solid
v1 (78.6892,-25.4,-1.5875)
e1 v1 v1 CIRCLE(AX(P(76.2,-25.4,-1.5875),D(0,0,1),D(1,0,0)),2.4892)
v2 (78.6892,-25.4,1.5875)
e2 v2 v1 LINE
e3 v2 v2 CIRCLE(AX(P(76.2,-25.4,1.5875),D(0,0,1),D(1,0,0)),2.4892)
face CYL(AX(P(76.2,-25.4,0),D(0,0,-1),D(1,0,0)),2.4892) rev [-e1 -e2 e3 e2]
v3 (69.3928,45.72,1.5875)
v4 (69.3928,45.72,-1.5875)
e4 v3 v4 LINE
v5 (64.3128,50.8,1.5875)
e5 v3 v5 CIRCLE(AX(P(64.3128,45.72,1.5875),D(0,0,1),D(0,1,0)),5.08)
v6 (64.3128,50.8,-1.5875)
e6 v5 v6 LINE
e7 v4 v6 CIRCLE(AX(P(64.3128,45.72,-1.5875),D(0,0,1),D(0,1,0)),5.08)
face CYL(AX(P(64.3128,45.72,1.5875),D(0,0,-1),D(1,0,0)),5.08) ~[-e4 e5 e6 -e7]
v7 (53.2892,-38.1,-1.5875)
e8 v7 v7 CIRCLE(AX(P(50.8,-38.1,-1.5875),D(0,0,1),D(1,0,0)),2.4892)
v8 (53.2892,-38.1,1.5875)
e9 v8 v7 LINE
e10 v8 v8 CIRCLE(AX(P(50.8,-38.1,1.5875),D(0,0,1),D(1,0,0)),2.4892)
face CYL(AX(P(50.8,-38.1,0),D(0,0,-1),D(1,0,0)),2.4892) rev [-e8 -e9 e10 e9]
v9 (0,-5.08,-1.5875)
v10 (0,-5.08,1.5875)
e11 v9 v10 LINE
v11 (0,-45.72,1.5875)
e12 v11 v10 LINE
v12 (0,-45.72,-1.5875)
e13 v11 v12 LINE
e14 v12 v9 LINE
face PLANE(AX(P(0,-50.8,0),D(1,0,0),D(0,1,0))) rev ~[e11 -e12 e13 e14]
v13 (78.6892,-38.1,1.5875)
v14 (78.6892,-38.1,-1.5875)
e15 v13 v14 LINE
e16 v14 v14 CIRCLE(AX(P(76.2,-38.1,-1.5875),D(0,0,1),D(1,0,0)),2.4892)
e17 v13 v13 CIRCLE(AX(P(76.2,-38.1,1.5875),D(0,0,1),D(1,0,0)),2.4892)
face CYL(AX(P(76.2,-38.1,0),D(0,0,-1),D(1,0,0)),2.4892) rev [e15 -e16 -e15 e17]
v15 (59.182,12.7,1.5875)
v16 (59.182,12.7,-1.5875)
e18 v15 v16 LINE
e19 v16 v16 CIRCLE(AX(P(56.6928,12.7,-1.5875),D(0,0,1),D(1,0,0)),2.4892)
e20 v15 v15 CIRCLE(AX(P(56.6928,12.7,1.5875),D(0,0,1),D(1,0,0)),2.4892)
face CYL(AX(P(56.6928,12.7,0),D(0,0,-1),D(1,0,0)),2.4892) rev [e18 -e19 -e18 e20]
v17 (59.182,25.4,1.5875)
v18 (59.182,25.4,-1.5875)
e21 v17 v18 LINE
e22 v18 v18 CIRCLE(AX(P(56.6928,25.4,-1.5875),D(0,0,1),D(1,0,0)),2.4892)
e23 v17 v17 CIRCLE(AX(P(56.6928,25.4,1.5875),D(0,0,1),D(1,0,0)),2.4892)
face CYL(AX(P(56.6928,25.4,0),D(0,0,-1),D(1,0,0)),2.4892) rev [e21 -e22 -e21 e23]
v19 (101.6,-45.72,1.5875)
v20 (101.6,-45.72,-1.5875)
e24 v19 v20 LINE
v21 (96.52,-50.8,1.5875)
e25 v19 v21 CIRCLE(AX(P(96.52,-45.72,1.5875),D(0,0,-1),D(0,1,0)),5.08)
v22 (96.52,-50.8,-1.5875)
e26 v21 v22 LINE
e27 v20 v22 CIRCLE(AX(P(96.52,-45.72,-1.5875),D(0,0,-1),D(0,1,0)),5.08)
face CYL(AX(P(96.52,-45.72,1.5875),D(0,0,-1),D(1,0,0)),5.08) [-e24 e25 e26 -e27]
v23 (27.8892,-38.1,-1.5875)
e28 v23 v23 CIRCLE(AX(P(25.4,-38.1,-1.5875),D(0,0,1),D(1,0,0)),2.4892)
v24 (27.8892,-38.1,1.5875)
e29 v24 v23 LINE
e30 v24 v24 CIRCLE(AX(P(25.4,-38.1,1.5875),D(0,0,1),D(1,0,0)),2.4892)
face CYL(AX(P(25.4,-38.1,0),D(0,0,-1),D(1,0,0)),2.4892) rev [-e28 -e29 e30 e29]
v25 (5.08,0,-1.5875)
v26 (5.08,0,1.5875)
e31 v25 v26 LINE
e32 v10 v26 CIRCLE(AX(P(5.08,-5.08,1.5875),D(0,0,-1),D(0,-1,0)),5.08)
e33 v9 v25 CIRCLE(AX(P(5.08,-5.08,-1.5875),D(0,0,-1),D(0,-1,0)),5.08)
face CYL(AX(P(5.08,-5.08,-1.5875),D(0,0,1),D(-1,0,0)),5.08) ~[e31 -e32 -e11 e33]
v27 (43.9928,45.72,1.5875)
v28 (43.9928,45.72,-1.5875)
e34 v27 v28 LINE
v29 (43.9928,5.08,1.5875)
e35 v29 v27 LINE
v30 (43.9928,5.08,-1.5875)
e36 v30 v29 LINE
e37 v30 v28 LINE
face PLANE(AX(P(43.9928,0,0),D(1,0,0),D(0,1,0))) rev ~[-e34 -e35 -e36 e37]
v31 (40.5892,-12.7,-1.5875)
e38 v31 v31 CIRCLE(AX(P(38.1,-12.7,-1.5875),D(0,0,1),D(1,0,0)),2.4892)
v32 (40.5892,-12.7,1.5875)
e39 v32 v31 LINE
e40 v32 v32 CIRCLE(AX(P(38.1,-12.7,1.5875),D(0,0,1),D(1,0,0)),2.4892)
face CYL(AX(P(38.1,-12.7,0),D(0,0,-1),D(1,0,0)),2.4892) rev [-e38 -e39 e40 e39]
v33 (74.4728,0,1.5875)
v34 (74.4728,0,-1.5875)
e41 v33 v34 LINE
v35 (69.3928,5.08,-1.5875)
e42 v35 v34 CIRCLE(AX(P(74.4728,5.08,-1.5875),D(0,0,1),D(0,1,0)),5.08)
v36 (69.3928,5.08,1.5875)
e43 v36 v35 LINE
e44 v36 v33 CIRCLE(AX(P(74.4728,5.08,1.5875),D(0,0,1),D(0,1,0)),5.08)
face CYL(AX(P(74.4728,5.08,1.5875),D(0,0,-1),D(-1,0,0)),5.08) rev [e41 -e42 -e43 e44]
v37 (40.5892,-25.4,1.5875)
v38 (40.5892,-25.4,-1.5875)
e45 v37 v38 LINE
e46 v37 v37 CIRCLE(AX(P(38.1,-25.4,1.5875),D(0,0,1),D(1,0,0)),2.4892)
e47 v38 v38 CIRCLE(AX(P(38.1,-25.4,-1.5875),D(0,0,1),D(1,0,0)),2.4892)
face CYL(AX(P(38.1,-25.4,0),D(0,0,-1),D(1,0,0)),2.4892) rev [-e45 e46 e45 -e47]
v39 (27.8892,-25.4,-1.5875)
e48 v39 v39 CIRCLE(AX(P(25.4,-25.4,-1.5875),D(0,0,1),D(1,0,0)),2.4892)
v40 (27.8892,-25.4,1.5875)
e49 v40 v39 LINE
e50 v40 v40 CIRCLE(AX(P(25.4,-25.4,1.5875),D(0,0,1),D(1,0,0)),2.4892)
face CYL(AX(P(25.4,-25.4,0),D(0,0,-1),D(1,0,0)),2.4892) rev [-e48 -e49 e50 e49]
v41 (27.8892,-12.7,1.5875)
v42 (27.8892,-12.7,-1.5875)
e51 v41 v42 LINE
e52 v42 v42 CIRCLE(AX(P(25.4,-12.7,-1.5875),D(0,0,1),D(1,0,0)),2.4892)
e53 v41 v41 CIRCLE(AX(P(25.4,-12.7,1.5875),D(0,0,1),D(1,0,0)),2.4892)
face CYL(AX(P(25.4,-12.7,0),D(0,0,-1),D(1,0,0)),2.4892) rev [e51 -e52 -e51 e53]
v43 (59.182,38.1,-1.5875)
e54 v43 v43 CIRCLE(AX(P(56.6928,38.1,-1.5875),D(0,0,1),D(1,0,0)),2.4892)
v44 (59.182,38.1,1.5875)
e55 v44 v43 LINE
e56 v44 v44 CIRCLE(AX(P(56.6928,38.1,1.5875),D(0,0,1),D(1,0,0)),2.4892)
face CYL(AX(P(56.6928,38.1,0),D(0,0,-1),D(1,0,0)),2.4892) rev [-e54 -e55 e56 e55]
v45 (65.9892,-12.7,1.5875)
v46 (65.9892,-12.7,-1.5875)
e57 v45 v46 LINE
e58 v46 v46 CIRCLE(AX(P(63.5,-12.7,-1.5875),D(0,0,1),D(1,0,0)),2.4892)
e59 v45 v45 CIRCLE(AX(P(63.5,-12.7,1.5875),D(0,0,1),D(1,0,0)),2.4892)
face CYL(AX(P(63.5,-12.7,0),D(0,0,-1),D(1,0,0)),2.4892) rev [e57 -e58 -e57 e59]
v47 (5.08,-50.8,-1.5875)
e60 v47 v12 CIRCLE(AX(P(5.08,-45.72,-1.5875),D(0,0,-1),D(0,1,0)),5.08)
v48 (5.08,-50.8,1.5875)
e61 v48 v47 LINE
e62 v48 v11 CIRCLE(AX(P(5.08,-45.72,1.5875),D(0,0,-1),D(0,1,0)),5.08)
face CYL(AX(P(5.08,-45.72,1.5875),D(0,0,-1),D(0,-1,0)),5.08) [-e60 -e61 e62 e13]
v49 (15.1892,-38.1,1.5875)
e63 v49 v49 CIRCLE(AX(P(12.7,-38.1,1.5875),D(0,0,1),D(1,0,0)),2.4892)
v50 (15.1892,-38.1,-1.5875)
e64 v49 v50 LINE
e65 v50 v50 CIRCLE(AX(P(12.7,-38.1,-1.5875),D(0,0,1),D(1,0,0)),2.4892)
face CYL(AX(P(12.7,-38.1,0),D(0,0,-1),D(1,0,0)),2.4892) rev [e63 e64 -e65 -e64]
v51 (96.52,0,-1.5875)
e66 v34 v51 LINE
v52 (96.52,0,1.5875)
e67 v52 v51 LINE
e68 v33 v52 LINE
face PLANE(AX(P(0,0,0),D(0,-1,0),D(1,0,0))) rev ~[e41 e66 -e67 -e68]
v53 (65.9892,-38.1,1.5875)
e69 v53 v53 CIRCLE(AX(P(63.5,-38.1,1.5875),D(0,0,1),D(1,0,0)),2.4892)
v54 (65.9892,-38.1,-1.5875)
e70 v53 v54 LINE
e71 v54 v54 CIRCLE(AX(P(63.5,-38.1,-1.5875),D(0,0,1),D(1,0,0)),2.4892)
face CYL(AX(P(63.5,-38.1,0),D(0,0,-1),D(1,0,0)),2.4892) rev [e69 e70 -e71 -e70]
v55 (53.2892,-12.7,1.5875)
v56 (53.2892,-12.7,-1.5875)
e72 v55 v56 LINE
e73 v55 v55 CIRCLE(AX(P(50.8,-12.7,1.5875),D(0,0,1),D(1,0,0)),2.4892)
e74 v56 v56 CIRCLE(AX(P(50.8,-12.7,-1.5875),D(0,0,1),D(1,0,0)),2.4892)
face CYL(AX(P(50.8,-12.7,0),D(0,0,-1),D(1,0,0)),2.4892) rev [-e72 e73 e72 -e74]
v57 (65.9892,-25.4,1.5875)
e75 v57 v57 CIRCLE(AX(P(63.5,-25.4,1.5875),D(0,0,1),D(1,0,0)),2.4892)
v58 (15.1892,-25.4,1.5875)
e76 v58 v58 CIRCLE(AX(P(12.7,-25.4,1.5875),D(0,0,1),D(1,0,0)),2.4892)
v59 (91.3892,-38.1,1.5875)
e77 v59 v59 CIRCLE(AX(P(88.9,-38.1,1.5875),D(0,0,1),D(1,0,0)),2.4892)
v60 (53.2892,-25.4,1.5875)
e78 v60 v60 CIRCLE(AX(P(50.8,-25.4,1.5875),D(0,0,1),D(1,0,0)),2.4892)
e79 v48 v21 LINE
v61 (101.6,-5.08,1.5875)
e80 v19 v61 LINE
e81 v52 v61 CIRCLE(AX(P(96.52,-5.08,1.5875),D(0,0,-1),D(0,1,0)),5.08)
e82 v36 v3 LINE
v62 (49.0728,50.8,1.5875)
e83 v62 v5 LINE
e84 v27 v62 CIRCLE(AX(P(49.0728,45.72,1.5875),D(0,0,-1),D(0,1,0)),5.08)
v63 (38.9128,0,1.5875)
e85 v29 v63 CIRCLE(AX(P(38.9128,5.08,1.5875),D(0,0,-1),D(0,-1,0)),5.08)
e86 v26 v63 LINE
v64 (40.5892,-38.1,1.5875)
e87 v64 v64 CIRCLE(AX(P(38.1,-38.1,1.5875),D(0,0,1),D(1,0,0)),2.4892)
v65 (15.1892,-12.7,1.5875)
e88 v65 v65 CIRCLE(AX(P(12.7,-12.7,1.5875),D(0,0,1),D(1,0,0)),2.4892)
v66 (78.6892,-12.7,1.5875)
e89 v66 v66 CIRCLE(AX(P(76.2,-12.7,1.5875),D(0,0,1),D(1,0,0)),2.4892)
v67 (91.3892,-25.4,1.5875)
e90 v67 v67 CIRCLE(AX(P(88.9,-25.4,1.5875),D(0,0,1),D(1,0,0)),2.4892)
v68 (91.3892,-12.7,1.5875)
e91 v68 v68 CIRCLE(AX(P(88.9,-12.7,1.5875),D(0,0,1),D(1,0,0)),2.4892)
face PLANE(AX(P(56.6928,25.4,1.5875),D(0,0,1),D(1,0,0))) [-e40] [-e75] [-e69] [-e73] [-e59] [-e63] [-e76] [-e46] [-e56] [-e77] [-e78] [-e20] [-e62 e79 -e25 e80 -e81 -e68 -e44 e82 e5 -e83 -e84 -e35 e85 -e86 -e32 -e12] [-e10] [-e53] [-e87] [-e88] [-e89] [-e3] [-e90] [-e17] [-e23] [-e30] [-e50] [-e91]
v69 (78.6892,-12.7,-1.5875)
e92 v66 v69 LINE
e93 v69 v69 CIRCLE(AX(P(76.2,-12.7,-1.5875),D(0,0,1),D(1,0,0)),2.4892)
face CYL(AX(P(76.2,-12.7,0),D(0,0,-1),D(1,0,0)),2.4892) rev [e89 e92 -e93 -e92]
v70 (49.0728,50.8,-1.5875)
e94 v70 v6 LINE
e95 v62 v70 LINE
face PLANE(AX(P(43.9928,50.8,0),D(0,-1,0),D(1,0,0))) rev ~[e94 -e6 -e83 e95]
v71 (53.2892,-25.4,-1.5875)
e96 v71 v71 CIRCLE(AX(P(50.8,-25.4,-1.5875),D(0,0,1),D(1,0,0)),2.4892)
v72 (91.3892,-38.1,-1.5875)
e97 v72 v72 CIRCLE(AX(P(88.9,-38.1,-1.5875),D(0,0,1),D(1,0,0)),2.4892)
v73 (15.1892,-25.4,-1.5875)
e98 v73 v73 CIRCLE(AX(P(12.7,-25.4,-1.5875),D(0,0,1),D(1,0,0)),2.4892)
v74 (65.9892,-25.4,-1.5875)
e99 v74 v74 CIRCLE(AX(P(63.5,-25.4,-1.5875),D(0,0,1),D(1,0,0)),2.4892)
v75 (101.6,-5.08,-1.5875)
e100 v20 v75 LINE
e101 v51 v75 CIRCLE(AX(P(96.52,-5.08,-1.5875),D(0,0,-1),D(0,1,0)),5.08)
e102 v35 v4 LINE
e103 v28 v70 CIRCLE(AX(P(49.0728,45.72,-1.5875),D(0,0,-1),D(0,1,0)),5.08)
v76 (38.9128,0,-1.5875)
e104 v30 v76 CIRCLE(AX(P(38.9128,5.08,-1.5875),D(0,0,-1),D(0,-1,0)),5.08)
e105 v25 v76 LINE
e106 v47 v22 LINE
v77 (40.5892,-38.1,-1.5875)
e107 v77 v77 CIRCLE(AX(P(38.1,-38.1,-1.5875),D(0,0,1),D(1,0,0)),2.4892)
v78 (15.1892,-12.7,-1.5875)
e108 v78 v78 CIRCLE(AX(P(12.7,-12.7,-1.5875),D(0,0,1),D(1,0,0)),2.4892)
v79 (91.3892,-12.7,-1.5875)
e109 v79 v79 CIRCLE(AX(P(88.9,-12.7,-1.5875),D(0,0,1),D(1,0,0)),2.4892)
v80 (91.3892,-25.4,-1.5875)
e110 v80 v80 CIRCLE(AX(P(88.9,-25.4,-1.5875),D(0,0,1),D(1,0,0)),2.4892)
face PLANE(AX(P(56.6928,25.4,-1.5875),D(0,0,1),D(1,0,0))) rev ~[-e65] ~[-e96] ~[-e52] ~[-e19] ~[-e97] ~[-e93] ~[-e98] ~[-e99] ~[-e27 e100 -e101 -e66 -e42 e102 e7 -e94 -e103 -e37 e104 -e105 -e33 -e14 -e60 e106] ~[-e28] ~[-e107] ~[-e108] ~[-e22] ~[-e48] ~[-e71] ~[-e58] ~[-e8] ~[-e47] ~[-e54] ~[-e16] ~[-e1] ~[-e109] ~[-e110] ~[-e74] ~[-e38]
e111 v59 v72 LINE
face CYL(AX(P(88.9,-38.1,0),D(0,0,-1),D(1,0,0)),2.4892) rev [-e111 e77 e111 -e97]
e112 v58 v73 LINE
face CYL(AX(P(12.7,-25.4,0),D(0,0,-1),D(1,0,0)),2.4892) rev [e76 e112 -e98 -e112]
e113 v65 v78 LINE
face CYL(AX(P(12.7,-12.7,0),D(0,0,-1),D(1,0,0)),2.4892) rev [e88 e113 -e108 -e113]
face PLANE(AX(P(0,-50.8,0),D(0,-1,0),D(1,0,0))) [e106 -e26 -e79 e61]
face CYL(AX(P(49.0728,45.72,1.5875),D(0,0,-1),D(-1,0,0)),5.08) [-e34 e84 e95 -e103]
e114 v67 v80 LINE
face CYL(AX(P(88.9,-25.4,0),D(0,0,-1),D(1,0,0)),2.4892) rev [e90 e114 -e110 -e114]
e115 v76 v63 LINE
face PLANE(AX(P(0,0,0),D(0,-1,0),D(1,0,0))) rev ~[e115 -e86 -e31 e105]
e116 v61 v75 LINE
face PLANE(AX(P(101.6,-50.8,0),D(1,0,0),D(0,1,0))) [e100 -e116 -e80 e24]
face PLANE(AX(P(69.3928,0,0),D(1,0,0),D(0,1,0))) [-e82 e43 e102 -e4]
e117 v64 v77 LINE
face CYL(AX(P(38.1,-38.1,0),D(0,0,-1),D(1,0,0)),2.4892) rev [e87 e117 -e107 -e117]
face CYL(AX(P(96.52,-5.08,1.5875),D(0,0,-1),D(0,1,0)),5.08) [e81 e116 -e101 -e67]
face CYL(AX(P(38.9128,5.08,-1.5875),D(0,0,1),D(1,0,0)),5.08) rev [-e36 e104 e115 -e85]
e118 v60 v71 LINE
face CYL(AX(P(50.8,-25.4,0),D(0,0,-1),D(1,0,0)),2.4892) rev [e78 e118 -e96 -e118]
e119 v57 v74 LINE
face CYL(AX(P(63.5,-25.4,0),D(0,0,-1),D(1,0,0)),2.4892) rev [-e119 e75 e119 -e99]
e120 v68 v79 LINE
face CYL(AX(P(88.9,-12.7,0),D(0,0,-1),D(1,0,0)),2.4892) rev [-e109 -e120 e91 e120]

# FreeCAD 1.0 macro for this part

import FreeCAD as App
import Part
import Sketcher
Q = App.Units.Quantity


def edges_at(feature, points):
    """Names of the edges that pass closest to the given points."""
    edges = feature.Shape.Edges
    near = lambda p: min(range(len(edges)), key=lambda i: edges[i].distToShape(Part.Vertex(*p))[0])
    return sorted({f"Edge{near(p) + 1}" for p in points})


def add_polygon(sketch, points):
    """Adds a closed chain of lines whose ends are joined by coincident constraints."""
    first, n = sketch.GeometryCount, len(points)
    for a, b in zip(points, points[1:] + points[:1]):
        sketch.addGeometry(Part.LineSegment(App.Vector(*a, 0), App.Vector(*b, 0)), False)
    for i in range(n):
        sketch.addConstraint(Sketcher.Constraint("Coincident", first + i, 2, first + (i + 1) % n, 1))

doc = App.newDocument("Part")
params = doc.addObject("Spreadsheet::Sheet", "Params")
for row, (alias, value) in enumerate([
    ("sketch1_width", "4 in"),
    ("sketch1_width2", "1 in"),
    ("sketch1_height", "2 in"),
    ("sketch1_diameter", "0.196 in"),
    ("sketch1_width3", "1.268 in"),
    ("pad1_length", "0.125 in"),
    ("fillet_radius", "0.2 in"),
], start=1):
    params.set(f"A{row}", alias)
    params.set(f"B{row}", "=" + value)
    params.setAlias(f"B{row}", alias)

body = doc.addObject("PartDesign::Body", "Body")

# Sketch on XY plane
sketch1 = doc.addObject("Sketcher::SketchObject", "Sketch")
body.addObject(sketch1)
sketch1.AttachmentSupport = (doc.XY_Plane, [""])
sketch1.MapMode = "FlatFace"
add_polygon(sketch1, [(0, 0), (0, -50.8), (101.6, -50.8), (101.6, 0), (69.3928, 0), (69.3928, 50.8), (43.9928, 50.8), (43.9928, 0)])  # lines 0-7
sketch1.addGeometry(Part.Circle(App.Vector(12.7, -38.1, 0), App.Vector(0, 0, 1), 2.4892), False)  # 8
sketch1.addGeometry(Part.Circle(App.Vector(25.4, -38.1, 0), App.Vector(0, 0, 1), 2.4892), False)  # 9
sketch1.addGeometry(Part.Circle(App.Vector(38.1, -38.1, 0), App.Vector(0, 0, 1), 2.4892), False)  # 10
sketch1.addGeometry(Part.Circle(App.Vector(50.8, -38.1, 0), App.Vector(0, 0, 1), 2.4892), False)  # 11
sketch1.addGeometry(Part.Circle(App.Vector(63.5, -38.1, 0), App.Vector(0, 0, 1), 2.4892), False)  # 12
sketch1.addGeometry(Part.Circle(App.Vector(76.2, -38.1, 0), App.Vector(0, 0, 1), 2.4892), False)  # 13
sketch1.addGeometry(Part.Circle(App.Vector(88.9, -38.1, 0), App.Vector(0, 0, 1), 2.4892), False)  # 14
sketch1.addGeometry(Part.Circle(App.Vector(12.7, -25.4, 0), App.Vector(0, 0, 1), 2.4892), False)  # 15
sketch1.addGeometry(Part.Circle(App.Vector(25.4, -25.4, 0), App.Vector(0, 0, 1), 2.4892), False)  # 16
sketch1.addGeometry(Part.Circle(App.Vector(38.1, -25.4, 0), App.Vector(0, 0, 1), 2.4892), False)  # 17
sketch1.addGeometry(Part.Circle(App.Vector(50.8, -25.4, 0), App.Vector(0, 0, 1), 2.4892), False)  # 18
sketch1.addGeometry(Part.Circle(App.Vector(12.7, -12.7, 0), App.Vector(0, 0, 1), 2.4892), False)  # 19
sketch1.addGeometry(Part.Circle(App.Vector(25.4, -12.7, 0), App.Vector(0, 0, 1), 2.4892), False)  # 20
sketch1.addGeometry(Part.Circle(App.Vector(38.1, -12.7, 0), App.Vector(0, 0, 1), 2.4892), False)  # 21
sketch1.addGeometry(Part.Circle(App.Vector(50.8, -12.7, 0), App.Vector(0, 0, 1), 2.4892), False)  # 22
sketch1.addGeometry(Part.Circle(App.Vector(63.5, -25.4, 0), App.Vector(0, 0, 1), 2.4892), False)  # 23
sketch1.addGeometry(Part.Circle(App.Vector(76.2, -25.4, 0), App.Vector(0, 0, 1), 2.4892), False)  # 24
sketch1.addGeometry(Part.Circle(App.Vector(88.9, -25.4, 0), App.Vector(0, 0, 1), 2.4892), False)  # 25
sketch1.addGeometry(Part.Circle(App.Vector(63.5, -12.7, 0), App.Vector(0, 0, 1), 2.4892), False)  # 26
sketch1.addGeometry(Part.Circle(App.Vector(76.2, -12.7, 0), App.Vector(0, 0, 1), 2.4892), False)  # 27
sketch1.addGeometry(Part.Circle(App.Vector(88.9, -12.7, 0), App.Vector(0, 0, 1), 2.4892), False)  # 28
sketch1.addGeometry(Part.Circle(App.Vector(56.6928, 38.1, 0), App.Vector(0, 0, 1), 2.4892), False)  # 29
sketch1.addGeometry(Part.Circle(App.Vector(56.6928, 12.7, 0), App.Vector(0, 0, 1), 2.4892), False)  # 30
sketch1.addGeometry(Part.Circle(App.Vector(56.6928, 25.4, 0), App.Vector(0, 0, 1), 2.4892), False)  # 31
sketch1.addConstraint([
    Sketcher.Constraint("Vertical", 0),
    Sketcher.Constraint("Horizontal", 1),
    Sketcher.Constraint("Vertical", 2),
    Sketcher.Constraint("Horizontal", 3),
    Sketcher.Constraint("Vertical", 4),
    Sketcher.Constraint("Horizontal", 5),
    Sketcher.Constraint("Vertical", 6),
    Sketcher.Constraint("Horizontal", 7),
    Sketcher.Constraint("Coincident", 7, 2, -1, 1),
    Sketcher.Constraint("Equal", 8, 9),
    Sketcher.Constraint("Equal", 9, 10),
    Sketcher.Constraint("Equal", 10, 11),
    Sketcher.Constraint("Equal", 11, 12),
    Sketcher.Constraint("Equal", 12, 13),
    Sketcher.Constraint("Equal", 13, 14),
    Sketcher.Constraint("Equal", 14, 15),
    Sketcher.Constraint("Equal", 15, 16),
    Sketcher.Constraint("Equal", 16, 17),
    Sketcher.Constraint("Equal", 17, 18),
    Sketcher.Constraint("Equal", 18, 19),
    Sketcher.Constraint("Equal", 19, 20),
    Sketcher.Constraint("Equal", 20, 21),
    Sketcher.Constraint("Equal", 21, 22),
    Sketcher.Constraint("Equal", 22, 23),
    Sketcher.Constraint("Equal", 23, 24),
    Sketcher.Constraint("Equal", 24, 25),
    Sketcher.Constraint("Equal", 25, 26),
    Sketcher.Constraint("Equal", 26, 27),
    Sketcher.Constraint("Equal", 27, 28),
    Sketcher.Constraint("Equal", 28, 29),
    Sketcher.Constraint("Equal", 29, 30),
    Sketcher.Constraint("Equal", 30, 31),
    Sketcher.Constraint("PointOnObject", 2, 2, -1),
    Sketcher.Constraint("Horizontal", 8, 3, 9, 3),
    Sketcher.Constraint("Horizontal", 9, 3, 10, 3),
    Sketcher.Constraint("Horizontal", 10, 3, 11, 3),
    Sketcher.Constraint("Horizontal", 11, 3, 12, 3),
    Sketcher.Constraint("Horizontal", 12, 3, 13, 3),
    Sketcher.Constraint("Horizontal", 13, 3, 14, 3),
    Sketcher.Constraint("Horizontal", 15, 3, 16, 3),
    Sketcher.Constraint("Horizontal", 16, 3, 17, 3),
    Sketcher.Constraint("Horizontal", 17, 3, 18, 3),
    Sketcher.Constraint("Horizontal", 19, 3, 20, 3),
    Sketcher.Constraint("Horizontal", 20, 3, 21, 3),
    Sketcher.Constraint("Horizontal", 21, 3, 22, 3),
    Sketcher.Constraint("Horizontal", 18, 3, 23, 3),
    Sketcher.Constraint("Horizontal", 23, 3, 24, 3),
    Sketcher.Constraint("Horizontal", 24, 3, 25, 3),
    Sketcher.Constraint("Horizontal", 22, 3, 26, 3),
    Sketcher.Constraint("Horizontal", 26, 3, 27, 3),
    Sketcher.Constraint("Horizontal", 27, 3, 28, 3),
    Sketcher.Constraint("Vertical", 8, 3, 15, 3),
    Sketcher.Constraint("Vertical", 9, 3, 16, 3),
    Sketcher.Constraint("Vertical", 10, 3, 17, 3),
    Sketcher.Constraint("Vertical", 11, 3, 18, 3),
    Sketcher.Constraint("Vertical", 15, 3, 19, 3),
    Sketcher.Constraint("Vertical", 16, 3, 20, 3),
    Sketcher.Constraint("Vertical", 17, 3, 21, 3),
    Sketcher.Constraint("Vertical", 18, 3, 22, 3),
    Sketcher.Constraint("Vertical", 12, 3, 23, 3),
    Sketcher.Constraint("Vertical", 13, 3, 24, 3),
    Sketcher.Constraint("Vertical", 14, 3, 25, 3),
    Sketcher.Constraint("Vertical", 23, 3, 26, 3),
    Sketcher.Constraint("Vertical", 24, 3, 27, 3),
    Sketcher.Constraint("Vertical", 25, 3, 28, 3),
    Sketcher.Constraint("Vertical", 29, 3, 30, 3),
    Sketcher.Constraint("Vertical", 30, 3, 31, 3),
    Sketcher.Constraint("Equal", 2, 4),
    Sketcher.Constraint("DistanceX", 1, 1, 1, 2, Q("4 in")),
    Sketcher.Constraint("DistanceX", 5, 2, 5, 1, Q("1 in")),
    Sketcher.Constraint("DistanceY", 0, 2, 0, 1, Q("2 in")),
    Sketcher.Constraint("Diameter", 8, Q("0.196 in")),
    Sketcher.Constraint("DistanceX", -1, 1, 9, 3, Q("1 in")),
    Sketcher.Constraint("DistanceX", -1, 1, 11, 3, Q("2 in")),
    Sketcher.Constraint("DistanceX", -1, 1, 13, 3, Q("3 in")),
    Sketcher.Constraint("DistanceY", 15, 3, -1, 1, Q("1 in")),
    Sketcher.Constraint("DistanceY", -1, 1, 31, 3, Q("1 in")),
    Sketcher.Constraint("DistanceX", 8, 3, 10, 3, Q("1 in")),
    Sketcher.Constraint("DistanceX", 10, 3, 12, 3, Q("1 in")),
    Sketcher.Constraint("DistanceX", 12, 3, 14, 3, Q("1 in")),
    Sketcher.Constraint("DistanceY", 8, 3, 19, 3, Q("1 in")),
    Sketcher.Constraint("DistanceY", 22, 3, 29, 3, Q("2 in")),
    Sketcher.Constraint("DistanceY", 30, 3, 29, 3, Q("1 in")),
    Sketcher.Constraint("DistanceX", -1, 1, 8, 3, Q("0.5 in")),
    Sketcher.Constraint("DistanceY", 8, 3, -1, 1, Q("1.5 in")),
    Sketcher.Constraint("DistanceX", 30, 3, 3, 2, Q("0.5 in")),
    Sketcher.Constraint("DistanceX", 3, 2, 3, 1, Q("1.268 in")),
])
sketch1.setExpression("Constraints[76]", "Params.sketch1_width")
sketch1.setExpression("Constraints[77]", "Params.sketch1_width2")
sketch1.setExpression("Constraints[78]", "Params.sketch1_height")
sketch1.setExpression("Constraints[79]", "Params.sketch1_diameter")
sketch1.setExpression("Constraints[94]", "Params.sketch1_width3")
pad1 = doc.addObject("PartDesign::Pad", "Pad")
body.addObject(pad1)
pad1.Profile = sketch1
pad1.setExpression("Length", "Params.pad1_length")
pad1.Midplane = True
doc.recompute()

fillet = doc.addObject("PartDesign::Fillet", "Fillet")
body.addObject(fillet)
fillet.Base = (pad1, edges_at(pad1, [
    (101.6, -50.8, 0),
    (0, -50.8, 0),
    (0, 0, 0),
    (43.993, 0, 0),
    (43.993, 50.8, 0),
    (69.393, 50.8, 0),
    (69.393, 0, 0),
    (101.6, 0, 0),
]))
fillet.setExpression("Radius", "Params.fillet_radius")

doc.recompute()
